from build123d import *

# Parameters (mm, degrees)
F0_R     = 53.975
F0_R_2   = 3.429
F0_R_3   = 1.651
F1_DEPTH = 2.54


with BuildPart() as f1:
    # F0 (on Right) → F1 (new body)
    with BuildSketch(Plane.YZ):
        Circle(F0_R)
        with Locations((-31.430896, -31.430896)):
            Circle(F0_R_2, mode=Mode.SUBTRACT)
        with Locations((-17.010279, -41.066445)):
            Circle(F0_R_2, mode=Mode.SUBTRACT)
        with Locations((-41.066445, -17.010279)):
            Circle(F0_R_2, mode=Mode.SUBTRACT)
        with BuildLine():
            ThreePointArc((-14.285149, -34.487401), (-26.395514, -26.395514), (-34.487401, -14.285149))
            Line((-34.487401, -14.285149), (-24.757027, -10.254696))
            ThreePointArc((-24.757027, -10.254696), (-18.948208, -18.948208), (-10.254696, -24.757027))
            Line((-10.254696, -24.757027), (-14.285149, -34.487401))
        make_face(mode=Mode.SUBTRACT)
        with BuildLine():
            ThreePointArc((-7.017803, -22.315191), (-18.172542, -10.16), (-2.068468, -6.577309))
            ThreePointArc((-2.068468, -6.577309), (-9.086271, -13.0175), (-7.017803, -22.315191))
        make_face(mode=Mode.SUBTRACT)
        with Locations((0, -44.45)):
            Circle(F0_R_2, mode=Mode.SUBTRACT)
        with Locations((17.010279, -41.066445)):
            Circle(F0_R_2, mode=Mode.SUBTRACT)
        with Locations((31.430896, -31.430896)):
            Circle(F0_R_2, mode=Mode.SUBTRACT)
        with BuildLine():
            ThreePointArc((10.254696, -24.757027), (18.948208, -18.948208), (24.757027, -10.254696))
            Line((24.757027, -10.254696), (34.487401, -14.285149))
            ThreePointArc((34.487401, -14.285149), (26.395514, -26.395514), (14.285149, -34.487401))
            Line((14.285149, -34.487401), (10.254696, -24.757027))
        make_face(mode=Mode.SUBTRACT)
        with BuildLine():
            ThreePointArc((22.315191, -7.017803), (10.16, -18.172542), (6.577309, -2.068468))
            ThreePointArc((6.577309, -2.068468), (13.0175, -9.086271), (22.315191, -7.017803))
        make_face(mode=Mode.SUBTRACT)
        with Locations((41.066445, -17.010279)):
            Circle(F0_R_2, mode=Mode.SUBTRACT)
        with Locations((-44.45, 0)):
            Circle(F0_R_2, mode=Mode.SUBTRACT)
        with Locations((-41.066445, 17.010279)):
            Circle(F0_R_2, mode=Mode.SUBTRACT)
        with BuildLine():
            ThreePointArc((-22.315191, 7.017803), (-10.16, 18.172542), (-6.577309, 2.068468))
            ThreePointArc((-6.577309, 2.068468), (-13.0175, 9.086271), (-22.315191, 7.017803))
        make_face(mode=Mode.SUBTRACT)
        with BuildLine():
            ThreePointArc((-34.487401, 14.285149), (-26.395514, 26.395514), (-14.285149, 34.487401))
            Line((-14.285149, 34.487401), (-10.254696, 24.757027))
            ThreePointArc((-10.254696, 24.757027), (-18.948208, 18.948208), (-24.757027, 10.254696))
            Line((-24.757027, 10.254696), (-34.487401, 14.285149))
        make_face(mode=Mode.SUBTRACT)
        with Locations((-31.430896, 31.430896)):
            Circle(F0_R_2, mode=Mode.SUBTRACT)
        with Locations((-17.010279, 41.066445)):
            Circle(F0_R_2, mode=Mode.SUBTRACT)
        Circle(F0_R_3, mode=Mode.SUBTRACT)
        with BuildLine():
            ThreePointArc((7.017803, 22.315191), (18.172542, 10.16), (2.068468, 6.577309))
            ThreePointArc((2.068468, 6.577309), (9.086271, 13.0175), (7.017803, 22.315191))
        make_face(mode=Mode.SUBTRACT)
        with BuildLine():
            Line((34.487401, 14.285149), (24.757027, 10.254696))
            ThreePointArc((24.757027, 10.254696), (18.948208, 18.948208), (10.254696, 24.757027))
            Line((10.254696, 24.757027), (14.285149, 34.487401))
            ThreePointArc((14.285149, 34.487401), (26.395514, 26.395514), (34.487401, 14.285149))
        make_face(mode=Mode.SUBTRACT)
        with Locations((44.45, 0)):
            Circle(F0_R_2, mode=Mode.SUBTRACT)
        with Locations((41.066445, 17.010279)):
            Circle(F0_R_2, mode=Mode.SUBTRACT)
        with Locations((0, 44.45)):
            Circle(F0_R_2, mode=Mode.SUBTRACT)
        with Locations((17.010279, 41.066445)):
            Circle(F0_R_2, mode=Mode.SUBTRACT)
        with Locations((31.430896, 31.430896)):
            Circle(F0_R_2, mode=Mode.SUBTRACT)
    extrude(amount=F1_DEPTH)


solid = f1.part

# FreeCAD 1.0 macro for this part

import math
import FreeCAD as App
import Part
import Sketcher

V = App.Vector
Q = App.Units.Quantity

doc = App.newDocument("Part")
body = doc.addObject("PartDesign::Body", "Body")

# Sketch on YZ plane
sketch1 = doc.addObject("Sketcher::SketchObject", "Sketch")
body.addObject(sketch1)
sketch1.AttachmentSupport = (doc.YZ_Plane, [""])
sketch1.MapMode = "FlatFace"
sketch1.addGeometry(Part.Circle(V(0, 0, 0), V(0, 0, 1), 53.975), False)
sketch1.addGeometry(Part.Circle(V(-31.430896, -31.430896, 0), V(0, 0, 1), 3.429), False)
sketch1.addGeometry(Part.Circle(V(-17.010279, -41.066445, 0), V(0, 0, 1), 3.429), False)
sketch1.addGeometry(Part.Circle(V(-41.066445, -17.010279, 0), V(0, 0, 1), 3.429), False)
sketch1.addGeometry(Part.LineSegment(V(-10.254696, -24.757027, 0), V(-14.285149, -34.487401, 0)), False)
sketch1.addGeometry(Part.ArcOfCircle(Part.Circle(V(-0.000001, -0.000001, 0), V(0, 0, 1), 37.328892), math.radians(-157.500001), math.radians(-112.499999)), False)
sketch1.addGeometry(Part.LineSegment(V(-34.487401, -14.285149, 0), V(-24.757027, -10.254696, 0)), False)
sketch1.addGeometry(Part.ArcOfCircle(Part.Circle(V(0.000001, 0.000001, 0), V(0, 0, 1), 26.796813), math.radians(-157.5), math.radians(-112.5)), False)
sketch1.addGeometry(Part.ArcOfCircle(Part.Circle(V(-0.000001, -15.875, 0), V(0, 0, 1), 9.524999), math.radians(102.542394), math.radians(222.5424)), False)
sketch1.addGeometry(Part.ArcOfCircle(Part.Circle(V(-9.086271, -13.0175, 0), V(0, 0, 1), 9.525), math.radians(42.542394), math.radians(282.5424)), False)
sketch1.addGeometry(Part.Circle(V(0, -44.45, 0), V(0, 0, 1), 3.429), False)
sketch1.addGeometry(Part.Circle(V(17.010279, -41.066445, 0), V(0, 0, 1), 3.429), False)
sketch1.addGeometry(Part.Circle(V(31.430896, -31.430896, 0), V(0, 0, 1), 3.429), False)
sketch1.addGeometry(Part.LineSegment(V(14.285149, -34.487401, 0), V(10.254696, -24.757027, 0)), False)
sketch1.addGeometry(Part.ArcOfCircle(Part.Circle(V(-0.000001, 0.000001, 0), V(0, 0, 1), 26.796813), math.radians(-67.5), math.radians(-22.5)), False)
sketch1.addGeometry(Part.LineSegment(V(24.757027, -10.254696, 0), V(34.487401, -14.285149, 0)), False)
sketch1.addGeometry(Part.ArcOfCircle(Part.Circle(V(0.000001, -0.000001, 0), V(0, 0, 1), 37.328892), math.radians(-67.500001), math.radians(-22.499999)), False)
sketch1.addGeometry(Part.ArcOfCircle(Part.Circle(V(15.875, -0.000001, 0), V(0, 0, 1), 9.524999), math.radians(-167.457606), math.radians(-47.4576)), False)
sketch1.addGeometry(Part.ArcOfCircle(Part.Circle(V(13.0175, -9.086271, 0), V(0, 0, 1), 9.525), math.radians(132.542394), math.radians(372.5424)), False)
sketch1.addGeometry(Part.Circle(V(41.066445, -17.010279, 0), V(0, 0, 1), 3.429), False)
sketch1.addGeometry(Part.Circle(V(-44.45, 0, 0), V(0, 0, 1), 3.429), False)
sketch1.addGeometry(Part.Circle(V(-41.066445, 17.010279, 0), V(0, 0, 1), 3.429), False)
sketch1.addGeometry(Part.ArcOfCircle(Part.Circle(V(-15.875, 0.000001, 0), V(0, 0, 1), 9.524999), math.radians(12.542394), math.radians(132.5424)), False)
sketch1.addGeometry(Part.ArcOfCircle(Part.Circle(V(-13.0175, 9.086271, 0), V(0, 0, 1), 9.525), math.radians(-47.457606), math.radians(192.5424)), False)
sketch1.addGeometry(Part.LineSegment(V(-24.757027, 10.254696, 0), V(-34.487401, 14.285149, 0)), False)
sketch1.addGeometry(Part.ArcOfCircle(Part.Circle(V(-0.000001, 0.000001, 0), V(0, 0, 1), 37.328892), math.radians(112.499999), math.radians(157.500001)), False)
sketch1.addGeometry(Part.LineSegment(V(-14.285149, 34.487401, 0), V(-10.254696, 24.757027, 0)), False)
sketch1.addGeometry(Part.ArcOfCircle(Part.Circle(V(0.000001, -0.000001, 0), V(0, 0, 1), 26.796813), math.radians(112.5), math.radians(157.5)), False)
sketch1.addGeometry(Part.Circle(V(-31.430896, 31.430896, 0), V(0, 0, 1), 3.429), False)
sketch1.addGeometry(Part.Circle(V(-17.010279, 41.066445, 0), V(0, 0, 1), 3.429), False)
sketch1.addGeometry(Part.Circle(V(0, 0, 0), V(0, 0, 1), 1.651), False)
sketch1.addGeometry(Part.ArcOfCircle(Part.Circle(V(0.000001, 15.875, 0), V(0, 0, 1), 9.524999), math.radians(-77.457606), math.radians(42.5424)), False)
sketch1.addGeometry(Part.ArcOfCircle(Part.Circle(V(9.086271, 13.0175, 0), V(0, 0, 1), 9.525), math.radians(-137.457606), math.radians(102.5424)), False)
sketch1.addGeometry(Part.ArcOfCircle(Part.Circle(V(0.000001, 0.000001, 0), V(0, 0, 1), 37.328892), math.radians(22.499999), math.radians(67.500001)), False)
sketch1.addGeometry(Part.LineSegment(V(34.487401, 14.285149, 0), V(24.757027, 10.254696, 0)), False)
sketch1.addGeometry(Part.ArcOfCircle(Part.Circle(V(-0.000001, -0.000001, 0), V(0, 0, 1), 26.796813), math.radians(22.5), math.radians(67.5)), False)
sketch1.addGeometry(Part.LineSegment(V(10.254696, 24.757027, 0), V(14.285149, 34.487401, 0)), False)
sketch1.addGeometry(Part.Circle(V(44.45, 0, 0), V(0, 0, 1), 3.429), False)
sketch1.addGeometry(Part.Circle(V(41.066445, 17.010279, 0), V(0, 0, 1), 3.429), False)
sketch1.addGeometry(Part.Circle(V(0, 44.45, 0), V(0, 0, 1), 3.429), False)
sketch1.addGeometry(Part.Circle(V(17.010279, 41.066445, 0), V(0, 0, 1), 3.429), False)
sketch1.addGeometry(Part.Circle(V(31.430896, 31.430896, 0), V(0, 0, 1), 3.429), False)
sketch1.addConstraint(Sketcher.Constraint("Coincident", 4, 2, 5, 2))
sketch1.addConstraint(Sketcher.Constraint("Coincident", 5, 1, 6, 1))
sketch1.addConstraint(Sketcher.Constraint("Coincident", 6, 2, 7, 1))
sketch1.addConstraint(Sketcher.Constraint("Coincident", 7, 2, 4, 1))
sketch1.addConstraint(Sketcher.Constraint("Coincident", 8, 1, 9, 1))
sketch1.addConstraint(Sketcher.Constraint("Coincident", 9, 2, 8, 2))
sketch1.addConstraint(Sketcher.Constraint("Coincident", 13, 2, 14, 1))
sketch1.addConstraint(Sketcher.Constraint("Coincident", 14, 2, 15, 1))
sketch1.addConstraint(Sketcher.Constraint("Coincident", 15, 2, 16, 2))
sketch1.addConstraint(Sketcher.Constraint("Coincident", 16, 1, 13, 1))
sketch1.addConstraint(Sketcher.Constraint("Coincident", 17, 1, 18, 1))
sketch1.addConstraint(Sketcher.Constraint("Coincident", 18, 2, 17, 2))
sketch1.addConstraint(Sketcher.Constraint("Coincident", 22, 1, 23, 1))
sketch1.addConstraint(Sketcher.Constraint("Coincident", 23, 2, 22, 2))
sketch1.addConstraint(Sketcher.Constraint("Coincident", 24, 2, 25, 2))
sketch1.addConstraint(Sketcher.Constraint("Coincident", 25, 1, 26, 1))
sketch1.addConstraint(Sketcher.Constraint("Coincident", 26, 2, 27, 1))
sketch1.addConstraint(Sketcher.Constraint("Coincident", 27, 2, 24, 1))
sketch1.addConstraint(Sketcher.Constraint("Coincident", 31, 1, 32, 1))
sketch1.addConstraint(Sketcher.Constraint("Coincident", 32, 2, 31, 2))
sketch1.addConstraint(Sketcher.Constraint("Coincident", 33, 1, 34, 1))
sketch1.addConstraint(Sketcher.Constraint("Coincident", 34, 2, 35, 1))
sketch1.addConstraint(Sketcher.Constraint("Coincident", 35, 2, 36, 1))
sketch1.addConstraint(Sketcher.Constraint("Coincident", 36, 2, 33, 2))
sketch1.addConstraint(Sketcher.Constraint("Coincident", 0, 3, -1, 1))
sketch1.addConstraint(Sketcher.Constraint("Coincident", 5, 3, -1, 1))
sketch1.addConstraint(Sketcher.Constraint("Coincident", 7, 3, -1, 1))
sketch1.addConstraint(Sketcher.Constraint("Coincident", 14, 3, -1, 1))
sketch1.addConstraint(Sketcher.Constraint("Coincident", 16, 3, -1, 1))
sketch1.addConstraint(Sketcher.Constraint("Coincident", 25, 3, -1, 1))
sketch1.addConstraint(Sketcher.Constraint("Coincident", 27, 3, -1, 1))
sketch1.addConstraint(Sketcher.Constraint("Coincident", 30, 3, -1, 1))
sketch1.addConstraint(Sketcher.Constraint("Coincident", 33, 3, -1, 1))
sketch1.addConstraint(Sketcher.Constraint("Coincident", 35, 3, -1, 1))
sketch1.addConstraint(Sketcher.Constraint("PointOnObject", 8, 3, -2))
sketch1.addConstraint(Sketcher.Constraint("PointOnObject", 10, 3, -2))
sketch1.addConstraint(Sketcher.Constraint("PointOnObject", 17, 3, -1))
sketch1.addConstraint(Sketcher.Constraint("PointOnObject", 20, 3, -1))
sketch1.addConstraint(Sketcher.Constraint("PointOnObject", 22, 3, -1))
sketch1.addConstraint(Sketcher.Constraint("PointOnObject", 31, 3, -2))
sketch1.addConstraint(Sketcher.Constraint("PointOnObject", 37, 3, -1))
sketch1.addConstraint(Sketcher.Constraint("PointOnObject", 39, 3, -2))
sketch1.addConstraint(Sketcher.Constraint("Diameter", 0, Q("4.25 in")))
sketch1.addConstraint(Sketcher.Constraint("Diameter", 1, Q("0.27 in")))
sketch1.addConstraint(Sketcher.Constraint("Diameter", 2, Q("0.27 in")))
sketch1.addConstraint(Sketcher.Constraint("Diameter", 3, Q("0.27 in")))
sketch1.addConstraint(Sketcher.Constraint("Diameter", 10, Q("0.27 in")))
sketch1.addConstraint(Sketcher.Constraint("Diameter", 11, Q("0.27 in")))
sketch1.addConstraint(Sketcher.Constraint("Diameter", 12, Q("0.27 in")))
sketch1.addConstraint(Sketcher.Constraint("Diameter", 19, Q("0.27 in")))
sketch1.addConstraint(Sketcher.Constraint("Diameter", 20, Q("0.27 in")))
sketch1.addConstraint(Sketcher.Constraint("Diameter", 21, Q("0.27 in")))
sketch1.addConstraint(Sketcher.Constraint("Diameter", 28, Q("0.27 in")))
sketch1.addConstraint(Sketcher.Constraint("Diameter", 29, Q("0.27 in")))
sketch1.addConstraint(Sketcher.Constraint("Diameter", 30, Q("0.13 in")))
sketch1.addConstraint(Sketcher.Constraint("Diameter", 37, Q("0.27 in")))
sketch1.addConstraint(Sketcher.Constraint("Diameter", 38, Q("0.27 in")))
sketch1.addConstraint(Sketcher.Constraint("Diameter", 39, Q("0.27 in")))
sketch1.addConstraint(Sketcher.Constraint("Diameter", 40, Q("0.27 in")))
sketch1.addConstraint(Sketcher.Constraint("Diameter", 41, Q("0.27 in")))
sketch1.addConstraint(Sketcher.Constraint("Radius", 8, Q("0.375 in")))
sketch1.addConstraint(Sketcher.Constraint("Radius", 9, Q("0.375 in")))
sketch1.addConstraint(Sketcher.Constraint("Radius", 17, Q("0.375 in")))
sketch1.addConstraint(Sketcher.Constraint("Radius", 18, Q("0.375 in")))
sketch1.addConstraint(Sketcher.Constraint("Radius", 22, Q("0.375 in")))
sketch1.addConstraint(Sketcher.Constraint("Radius", 23, Q("0.375 in")))
sketch1.addConstraint(Sketcher.Constraint("Radius", 31, Q("0.375 in")))
sketch1.addConstraint(Sketcher.Constraint("Radius", 32, Q("0.375 in")))
sketch1.addConstraint(Sketcher.Constraint("DistanceY", 10, 3, -1, 1, Q("1.75 in")))
sketch1.addConstraint(Sketcher.Constraint("DistanceX", 20, 3, -1, 1, Q("1.75 in")))
sketch1.addConstraint(Sketcher.Constraint("DistanceX", -1, 1, 37, 3, Q("1.75 in")))
sketch1.addConstraint(Sketcher.Constraint("DistanceY", -1, 1, 39, 3, Q("1.75 in")))
sketch1.addConstraint(Sketcher.Constraint("DistanceY", 8, 3, -1, 1, Q("0.625 in")))
sketch1.addConstraint(Sketcher.Constraint("DistanceX", -1, 1, 17, 3, Q("0.625 in")))
sketch1.addConstraint(Sketcher.Constraint("DistanceX", 22, 3, -1, 1, Q("0.625 in")))
sketch1.addConstraint(Sketcher.Constraint("DistanceY", -1, 1, 31, 3, Q("0.625 in")))
sketch1.addConstraint(Sketcher.Constraint("DistanceY", 9, 3, -1, 1, Q("0.5125 in")))
sketch1.addConstraint(Sketcher.Constraint("DistanceX", -1, 1, 18, 3, Q("0.5125 in")))
sketch1.addConstraint(Sketcher.Constraint("DistanceX", 23, 3, -1, 1, Q("0.5125 in")))
sketch1.addConstraint(Sketcher.Constraint("DistanceY", -1, 1, 32, 3, Q("0.5125 in")))
sketch1.addConstraint(Sketcher.Constraint("Radius", 5, 37.328892))
sketch1.addConstraint(Sketcher.Constraint("Radius", 7, 26.796813))
sketch1.addConstraint(Sketcher.Constraint("Radius", 14, 26.796813))
sketch1.addConstraint(Sketcher.Constraint("Radius", 16, 37.328892))
sketch1.addConstraint(Sketcher.Constraint("Radius", 25, 37.328892))
sketch1.addConstraint(Sketcher.Constraint("Radius", 27, 26.796813))
sketch1.addConstraint(Sketcher.Constraint("Radius", 33, 37.328892))
sketch1.addConstraint(Sketcher.Constraint("Radius", 35, 26.796813))
sketch1.addConstraint(Sketcher.Constraint("DistanceY", 4, 2, -1, 1, 34.487401))
sketch1.addConstraint(Sketcher.Constraint("DistanceX", 5, 1, -1, 1, 34.487401))
sketch1.addConstraint(Sketcher.Constraint("DistanceX", -1, 1, 15, 2, 34.487401))
sketch1.addConstraint(Sketcher.Constraint("DistanceY", 16, 1, -1, 1, 34.487401))
sketch1.addConstraint(Sketcher.Constraint("DistanceX", 24, 2, -1, 1, 34.487401))
sketch1.addConstraint(Sketcher.Constraint("DistanceY", -1, 1, 25, 1, 34.487401))
sketch1.addConstraint(Sketcher.Constraint("DistanceX", -1, 1, 33, 1, 34.487401))
sketch1.addConstraint(Sketcher.Constraint("DistanceY", -1, 1, 36, 2, 34.487401))
sketch1.addConstraint(Sketcher.Constraint("DistanceY", 1, 3, 6, 2, 21.1762))
sketch1.addConstraint(Sketcher.Constraint("DistanceX", 9, 2, 13, 2, 17.272499))
sketch1.addConstraint(Sketcher.Constraint("DistanceY", 12, 3, 14, 2, 21.1762))
sketch1.addConstraint(Sketcher.Constraint("DistanceY", 6, 2, 23, 2, 17.272499))
sketch1.addConstraint(Sketcher.Constraint("DistanceX", 26, 2, 32, 2, 17.272499))
sketch1.addConstraint(Sketcher.Constraint("DistanceY", 18, 2, 34, 2, 17.272499))
sketch1.addConstraint(Sketcher.Constraint("DistanceX", 2, 3, -1, 1, 17.010279))
sketch1.addConstraint(Sketcher.Constraint("DistanceY", 3, 3, -1, 1, 17.010279))
sketch1.addConstraint(Sketcher.Constraint("DistanceX", 9, 3, -1, 1, 9.086271))
sketch1.addConstraint(Sketcher.Constraint("DistanceX", -1, 1, 11, 3, 17.010279))
sketch1.addConstraint(Sketcher.Constraint("DistanceY", 18, 3, -1, 1, 9.086271))
sketch1.addConstraint(Sketcher.Constraint("DistanceY", 19, 3, -1, 1, 17.010279))
sketch1.addConstraint(Sketcher.Constraint("DistanceY", -1, 1, 21, 3, 17.010279))
sketch1.addConstraint(Sketcher.Constraint("DistanceY", -1, 1, 23, 3, 9.086271))
sketch1.addConstraint(Sketcher.Constraint("DistanceX", 29, 3, -1, 1, 17.010279))
sketch1.addConstraint(Sketcher.Constraint("DistanceX", -1, 1, 32, 3, 9.086271))
sketch1.addConstraint(Sketcher.Constraint("DistanceY", -1, 1, 38, 3, 17.010279))
sketch1.addConstraint(Sketcher.Constraint("DistanceX", -1, 1, 40, 3, 17.010279))
sketch1.addConstraint(Sketcher.Constraint("DistanceY", 2, 3, 1, 3, 9.635549))
sketch1.addConstraint(Sketcher.Constraint("DistanceX", 3, 3, 1, 3, 9.635549))
sketch1.addConstraint(Sketcher.Constraint("DistanceY", 11, 3, 12, 3, 9.635549))
sketch1.addConstraint(Sketcher.Constraint("DistanceX", 12, 3, 19, 3, 9.635549))
sketch1.addConstraint(Sketcher.Constraint("DistanceX", 21, 3, 28, 3, 9.635549))
sketch1.addConstraint(Sketcher.Constraint("DistanceY", 28, 3, 29, 3, 9.635549))
sketch1.addConstraint(Sketcher.Constraint("DistanceX", 41, 3, 38, 3, 9.635549))
sketch1.addConstraint(Sketcher.Constraint("DistanceY", 41, 3, 40, 3, 9.635549))
sketch1.addConstraint(Sketcher.Constraint("DistanceX", 3, 3, 6, 2, 16.309418))
sketch1.addConstraint(Sketcher.Constraint("DistanceY", 2, 3, 7, 2, 16.309418))
sketch1.addConstraint(Sketcher.Constraint("DistanceY", 11, 3, 13, 2, 16.309418))
sketch1.addConstraint(Sketcher.Constraint("DistanceX", 14, 2, 19, 3, 16.309418))
sketch1.addConstraint(Sketcher.Constraint("DistanceY", 26, 2, 29, 3, 16.309418))
sketch1.addConstraint(Sketcher.Constraint("DistanceX", 21, 3, 27, 2, 16.309418))
sketch1.addConstraint(Sketcher.Constraint("DistanceX", 34, 2, 38, 3, 16.309418))
sketch1.addConstraint(Sketcher.Constraint("DistanceY", 35, 2, 40, 3, 16.309418))
sketch1.addConstraint(Sketcher.Constraint("DistanceX", 21, 3, -1, 1, 41.066445))
sketch1.addConstraint(Sketcher.Constraint("DistanceY", -1, 1, 40, 3, 41.066445))
pad1 = doc.addObject("PartDesign::Pad", "Pad")
body.addObject(pad1)
pad1.Profile = sketch1
pad1.Length = Q("0.1 in")

doc.recompute()
